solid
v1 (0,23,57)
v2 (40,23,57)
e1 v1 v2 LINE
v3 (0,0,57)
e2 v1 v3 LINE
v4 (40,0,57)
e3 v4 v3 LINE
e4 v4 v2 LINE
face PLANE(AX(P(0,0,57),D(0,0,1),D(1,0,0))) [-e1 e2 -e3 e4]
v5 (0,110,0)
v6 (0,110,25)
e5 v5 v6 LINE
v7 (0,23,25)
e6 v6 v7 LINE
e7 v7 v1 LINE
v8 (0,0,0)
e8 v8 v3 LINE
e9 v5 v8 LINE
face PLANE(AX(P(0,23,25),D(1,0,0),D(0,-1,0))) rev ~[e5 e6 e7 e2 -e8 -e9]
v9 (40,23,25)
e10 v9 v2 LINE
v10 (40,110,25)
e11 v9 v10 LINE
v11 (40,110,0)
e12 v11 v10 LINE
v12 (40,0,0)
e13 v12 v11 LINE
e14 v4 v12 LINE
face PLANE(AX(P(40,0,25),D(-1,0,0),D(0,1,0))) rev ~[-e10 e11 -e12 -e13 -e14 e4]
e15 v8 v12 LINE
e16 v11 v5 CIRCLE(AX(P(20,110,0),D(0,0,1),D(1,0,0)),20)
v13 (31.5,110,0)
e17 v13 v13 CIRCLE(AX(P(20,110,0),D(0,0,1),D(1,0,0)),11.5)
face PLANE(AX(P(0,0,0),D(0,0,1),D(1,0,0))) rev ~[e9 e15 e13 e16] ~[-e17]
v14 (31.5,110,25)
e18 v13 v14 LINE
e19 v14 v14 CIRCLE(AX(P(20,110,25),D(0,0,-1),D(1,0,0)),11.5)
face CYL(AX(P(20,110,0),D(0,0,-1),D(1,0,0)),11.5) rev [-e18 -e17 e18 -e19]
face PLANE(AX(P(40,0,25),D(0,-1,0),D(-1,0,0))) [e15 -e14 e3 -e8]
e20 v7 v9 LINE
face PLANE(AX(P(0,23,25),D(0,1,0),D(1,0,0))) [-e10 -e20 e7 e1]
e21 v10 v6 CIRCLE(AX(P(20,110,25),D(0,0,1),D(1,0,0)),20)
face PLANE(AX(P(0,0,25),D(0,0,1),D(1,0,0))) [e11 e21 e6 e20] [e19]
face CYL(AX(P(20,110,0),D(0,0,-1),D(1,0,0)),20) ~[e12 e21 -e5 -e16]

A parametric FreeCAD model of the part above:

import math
import FreeCAD as App
import Part
import Sketcher

V = App.Vector
Q = App.Units.Quantity

doc = App.newDocument("Part")
body = doc.addObject("PartDesign::Body", "Body")

sketch1 = doc.addObject("Sketcher::SketchObject", "Sketch")
body.addObject(sketch1)
sketch1.AttachmentSupport = (doc.XY_Plane, [""])
sketch1.MapMode = "FlatFace"
sketch1.addGeometry(Part.LineSegment(V(0, 110, 0), V(0, 0, 0)), False)
sketch1.addGeometry(Part.LineSegment(V(0, 0, 0), V(40, 0, 0)), False)
sketch1.addGeometry(Part.LineSegment(V(40, 0, 0), V(40, 110, 0)), False)
sketch1.addGeometry(Part.ArcOfCircle(Part.Circle(V(20, 110, 0), V(0, 0, 1), 20), math.radians(0), math.radians(180)), False)
sketch1.addGeometry(Part.Circle(V(20, 110, 0), V(0, 0, 1), 12), False)
sketch1.addConstraint(Sketcher.Constraint("Coincident", 0, 2, 1, 1))
sketch1.addConstraint(Sketcher.Constraint("Coincident", 1, 2, 2, 1))
sketch1.addConstraint(Sketcher.Constraint("Tangent", 2, 2, 3, 1))
sketch1.addConstraint(Sketcher.Constraint("Tangent", 3, 2, 0, 1))
sketch1.addConstraint(Sketcher.Constraint("Vertical", 0))
sketch1.addConstraint(Sketcher.Constraint("Horizontal", 1))
sketch1.addConstraint(Sketcher.Constraint("Vertical", 2))
sketch1.addConstraint(Sketcher.Constraint("Coincident", 0, 2, -1, 1))
sketch1.addConstraint(Sketcher.Constraint("Coincident", 4, 3, 3, 3))
sketch1.addConstraint(Sketcher.Constraint("Diameter", 4, Q("23 mm")))
sketch1.addConstraint(Sketcher.Constraint("Radius", 3, Q("20 mm")))
sketch1.addConstraint(Sketcher.Constraint("DistanceY", 0, 2, 0, 1, Q("110 mm")))
pad1 = doc.addObject("PartDesign::Pad", "Pad")
body.addObject(pad1)
pad1.Profile = sketch1
pad1.Length = 25

sketch2 = doc.addObject("Sketcher::SketchObject", "Sketch001")
body.addObject(sketch2)
sketch2.AttachmentSupport = (doc.XY_Plane, [""])
sketch2.MapMode = "FlatFace"
sketch2.AttachmentOffset = App.Placement(V(0, 0, 25), App.Rotation())
sketch2.addGeometry(Part.LineSegment(V(40, 23, 0), V(0, 23, 0)), False)
sketch2.addGeometry(Part.LineSegment(V(0, 23, 0), V(0, 0, 0)), False)
sketch2.addGeometry(Part.LineSegment(V(0, 0, 0), V(40, 0, 0)), False)
sketch2.addGeometry(Part.LineSegment(V(40, 0, 0), V(40, 23, 0)), False)
sketch2.addConstraint(Sketcher.Constraint("Coincident", 0, 2, 1, 1))
sketch2.addConstraint(Sketcher.Constraint("Coincident", 1, 2, 2, 1))
sketch2.addConstraint(Sketcher.Constraint("Coincident", 2, 2, 3, 1))
sketch2.addConstraint(Sketcher.Constraint("Coincident", 3, 2, 0, 1))
sketch2.addConstraint(Sketcher.Constraint("Horizontal", 0))
sketch2.addConstraint(Sketcher.Constraint("Vertical", 1))
sketch2.addConstraint(Sketcher.Constraint("Horizontal", 2))
sketch2.addConstraint(Sketcher.Constraint("Vertical", 3))
sketch2.addConstraint(Sketcher.Constraint("Coincident", 1, 2, -1, 1))
sketch2.addConstraint(Sketcher.Constraint("DistanceX", 0, 2, 0, 1, Q("40 mm")))
sketch2.addConstraint(Sketcher.Constraint("DistanceY", 1, 2, 1, 1, Q("23 mm")))
pad2 = doc.addObject("PartDesign::Pad", "Pad001")
body.addObject(pad2)
pad2.Profile = sketch2
pad2.Length = 32

doc.recompute()
